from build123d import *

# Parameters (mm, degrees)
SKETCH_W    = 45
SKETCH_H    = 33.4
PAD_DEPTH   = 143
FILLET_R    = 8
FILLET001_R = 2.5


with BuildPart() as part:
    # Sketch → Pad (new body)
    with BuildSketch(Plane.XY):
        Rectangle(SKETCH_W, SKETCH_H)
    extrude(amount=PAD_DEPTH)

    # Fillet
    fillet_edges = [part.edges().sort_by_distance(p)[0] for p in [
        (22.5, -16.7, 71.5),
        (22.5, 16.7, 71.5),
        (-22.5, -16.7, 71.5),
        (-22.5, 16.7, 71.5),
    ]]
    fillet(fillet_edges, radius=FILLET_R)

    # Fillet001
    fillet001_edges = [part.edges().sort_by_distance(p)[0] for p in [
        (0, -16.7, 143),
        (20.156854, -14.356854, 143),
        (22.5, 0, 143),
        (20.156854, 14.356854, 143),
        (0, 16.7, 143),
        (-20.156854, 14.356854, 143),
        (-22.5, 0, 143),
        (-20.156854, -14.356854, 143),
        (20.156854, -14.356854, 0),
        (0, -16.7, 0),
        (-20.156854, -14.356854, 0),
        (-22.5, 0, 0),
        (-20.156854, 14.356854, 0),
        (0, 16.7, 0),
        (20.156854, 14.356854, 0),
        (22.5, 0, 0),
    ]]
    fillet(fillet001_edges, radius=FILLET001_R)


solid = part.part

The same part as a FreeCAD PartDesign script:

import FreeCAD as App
import Part
import Sketcher
from FreeCAD import Vector


def edges_at(feature, points):
    """Names of the edges that pass closest to the given points."""
    edges = feature.Shape.Edges
    near = lambda p: min(range(len(edges)), key=lambda i: edges[i].distToShape(Part.Vertex(*p))[0])
    return sorted({f"Edge{near(p) + 1}" for p in points})


def add_polygon(sketch, points):
    """Adds a closed chain of lines whose ends are joined by coincident constraints."""
    first, n = sketch.GeometryCount, len(points)
    for a, b in zip(points, points[1:] + points[:1]):
        sketch.addGeometry(Part.LineSegment(App.Vector(*a, 0), App.Vector(*b, 0)), False)
    for i in range(n):
        sketch.addConstraint(Sketcher.Constraint("Coincident", first + i, 2, first + (i + 1) % n, 1))

doc = App.newDocument("Part")
params = doc.addObject("Spreadsheet::Sheet", "Params")
for row, (alias, value) in enumerate([
    ("sketch1_width", "45 mm"),
    ("sketch1_height", "33.4 mm"),
    ("pad1_length", "143 mm"),
    ("fillet_radius", "8 mm"),
    ("fillet2_radius", "2.5 mm"),
], start=1):
    params.set(f"A{row}", alias)
    params.set(f"B{row}", "=" + value)
    params.setAlias(f"B{row}", alias)

body = doc.addObject("PartDesign::Body", "Body")

sketch1 = body.newObject("Sketcher::SketchObject", "Sketch")
sketch1.AttachmentSupport = (doc.getObject("XY_Plane"), [""])
sketch1.MapMode = "FlatFace"
add_polygon(sketch1, [(-22, 17), (-22, -17), (22, -17), (22, 17)])
sketch1.addConstraint([
    Sketcher.Constraint("Vertical", 0),
    Sketcher.Constraint("Horizontal", 1),
    Sketcher.Constraint("Vertical", 2),
    Sketcher.Constraint("Horizontal", 3),
    Sketcher.Constraint("Symmetric", 0, 2, 2, 2, -1, 1),
    Sketcher.Constraint("DistanceX", 1, 1, 1, 2, 45.0),
    Sketcher.Constraint("DistanceY", 0, 2, 0, 1, 33.4),
])
sketch1.setExpression("Constraints[9]", "Params.sketch1_width")
sketch1.setExpression("Constraints[10]", "Params.sketch1_height")
pad1 = body.newObject("PartDesign::Pad", "Pad")
pad1.Profile = sketch1
pad1.setExpression("Length", "Params.pad1_length")
doc.recompute()

fillet = body.newObject("PartDesign::Fillet", "Fillet")
fillet.Base = (pad1, edges_at(pad1, [
    (22.5, -16.7, 71.5),
    (22.5, 16.7, 71.5),
    (-22.5, -16.7, 71.5),
    (-22.5, 16.7, 71.5),
]))
fillet.setExpression("Radius", "Params.fillet_radius")
doc.recompute()

fillet2 = body.newObject("PartDesign::Fillet", "Fillet001")
fillet2.Base = (fillet, edges_at(fillet, [
    (0, -16.7, 143),
    (20.157, -14.357, 143),
    (22.5, 0, 143),
    (20.157, 14.357, 143),
    (0, 16.7, 143),
    (-20.157, 14.357, 143),
    (-22.5, 0, 143),
    (-20.157, -14.357, 143),
    (20.157, -14.357, 0),
    (0, -16.7, 0),
    (-20.157, -14.357, 0),
    (-22.5, 0, 0),
    (-20.157, 14.357, 0),
    (0, 16.7, 0),
    (20.157, 14.357, 0),
    (22.5, 0, 0),
]))
fillet2.setExpression("Radius", "Params.fillet2_radius")

doc.recompute()
